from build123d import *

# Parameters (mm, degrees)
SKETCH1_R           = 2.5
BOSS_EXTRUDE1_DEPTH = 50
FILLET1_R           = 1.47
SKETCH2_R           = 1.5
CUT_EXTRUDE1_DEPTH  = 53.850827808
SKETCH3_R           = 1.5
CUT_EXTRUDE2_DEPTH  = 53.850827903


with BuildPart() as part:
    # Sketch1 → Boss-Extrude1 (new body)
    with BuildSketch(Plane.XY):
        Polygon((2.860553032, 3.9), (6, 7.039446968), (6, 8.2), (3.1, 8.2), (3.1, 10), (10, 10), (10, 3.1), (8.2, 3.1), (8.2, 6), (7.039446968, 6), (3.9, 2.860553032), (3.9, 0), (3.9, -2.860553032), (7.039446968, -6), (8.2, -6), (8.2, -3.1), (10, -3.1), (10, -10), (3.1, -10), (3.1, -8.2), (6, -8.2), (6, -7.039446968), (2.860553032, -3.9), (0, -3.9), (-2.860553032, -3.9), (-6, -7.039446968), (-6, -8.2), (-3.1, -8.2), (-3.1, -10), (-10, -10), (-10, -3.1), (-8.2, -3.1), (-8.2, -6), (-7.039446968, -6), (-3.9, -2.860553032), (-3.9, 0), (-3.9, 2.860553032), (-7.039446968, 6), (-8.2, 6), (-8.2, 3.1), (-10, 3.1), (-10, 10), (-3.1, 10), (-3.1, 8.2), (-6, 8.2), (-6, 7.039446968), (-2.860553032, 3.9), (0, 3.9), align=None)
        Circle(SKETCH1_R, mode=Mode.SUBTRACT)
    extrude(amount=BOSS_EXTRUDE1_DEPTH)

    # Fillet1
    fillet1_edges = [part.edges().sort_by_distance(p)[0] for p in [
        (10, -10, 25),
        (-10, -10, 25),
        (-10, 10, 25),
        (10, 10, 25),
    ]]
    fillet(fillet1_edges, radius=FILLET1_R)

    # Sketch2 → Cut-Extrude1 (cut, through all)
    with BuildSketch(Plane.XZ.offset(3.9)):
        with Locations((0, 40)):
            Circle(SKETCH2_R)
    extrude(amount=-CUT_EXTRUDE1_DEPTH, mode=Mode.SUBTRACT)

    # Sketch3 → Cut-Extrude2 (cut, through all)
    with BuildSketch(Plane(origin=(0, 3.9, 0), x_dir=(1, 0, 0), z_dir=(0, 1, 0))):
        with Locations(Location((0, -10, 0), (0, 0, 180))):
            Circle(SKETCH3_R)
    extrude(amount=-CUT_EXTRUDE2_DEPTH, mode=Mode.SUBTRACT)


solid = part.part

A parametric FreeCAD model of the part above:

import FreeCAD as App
import Part
import Sketcher

V = App.Vector


def edges_at(feature, points):
    """Names of the edges that pass closest to the given points."""
    edges = feature.Shape.Edges
    near = lambda p: min(range(len(edges)), key=lambda i: edges[i].distToShape(Part.Vertex(*p))[0])
    return sorted({f"Edge{near(p) + 1}" for p in points})

doc = App.newDocument("Part")
body = doc.addObject("PartDesign::Body", "Body")

sketch1 = body.newObject("Sketcher::SketchObject", "Sketch")
sketch1.AttachmentSupport = (doc.getObject("XY_Plane"), [""])
sketch1.MapMode = "FlatFace"
sketch1.addGeometry([
    Part.LineSegment(V(6, 7, 0), V(2.9, 3.9, 0)),
    Part.LineSegment(V(2.9, 3.9, 0), V(-2.9, 3.9, 0)),
    Part.LineSegment(V(-2.9, 3.9, 0), V(-6, 7, 0)),
    Part.LineSegment(V(-6, 7, 0), V(-6, 8.2, 0)),
    Part.LineSegment(V(-6, 8.2, 0), V(-3.1, 8.2, 0)),
    Part.LineSegment(V(-3.1, 8.2, 0), V(-3.1, 10, 0)),
    Part.LineSegment(V(-3.1, 10, 0), V(-10, 10, 0)),
    Part.LineSegment(V(-10, 10, 0), V(-10, 3.1, 0)),
    Part.LineSegment(V(-10, 3.1, 0), V(-8.2, 3.1, 0)),
    Part.LineSegment(V(-8.2, 3.1, 0), V(-8.2, 6, 0)),
    Part.LineSegment(V(-8.2, 6, 0), V(-7, 6, 0)),
    Part.LineSegment(V(-7, 6, 0), V(-3.9, 2.9, 0)),
    Part.LineSegment(V(-3.9, 2.9, 0), V(-3.9, -2.9, 0)),
    Part.LineSegment(V(-3.9, -2.9, 0), V(-7, -6, 0)),
    Part.LineSegment(V(-7, -6, 0), V(-8.2, -6, 0)),
    Part.LineSegment(V(-8.2, -6, 0), V(-8.2, -3.1, 0)),
    Part.LineSegment(V(-8.2, -3.1, 0), V(-10, -3.1, 0)),
    Part.LineSegment(V(-10, -3.1, 0), V(-10, -10, 0)),
    Part.LineSegment(V(-10, -10, 0), V(-3.1, -10, 0)),
    Part.LineSegment(V(-3.1, -10, 0), V(-3.1, -8.2, 0)),
    Part.LineSegment(V(-3.1, -8.2, 0), V(-6, -8.2, 0)),
    Part.LineSegment(V(-6, -8.2, 0), V(-6, -7, 0)),
    Part.LineSegment(V(-6, -7, 0), V(-2.9, -3.9, 0)),
    Part.LineSegment(V(-2.9, -3.9, 0), V(2.9, -3.9, 0)),
    Part.LineSegment(V(2.9, -3.9, 0), V(6, -7, 0)),
    Part.LineSegment(V(6, -7, 0), V(6, -8.2, 0)),
    Part.LineSegment(V(6, -8.2, 0), V(3.1, -8.2, 0)),
    Part.LineSegment(V(3.1, -8.2, 0), V(3.1, -10, 0)),
    Part.LineSegment(V(3.1, -10, 0), V(10, -10, 0)),
    Part.LineSegment(V(10, -10, 0), V(10, -3.1, 0)),
    Part.LineSegment(V(10, -3.1, 0), V(8.2, -3.1, 0)),
    Part.LineSegment(V(8.2, -3.1, 0), V(8.2, -6, 0)),
    Part.LineSegment(V(8.2, -6, 0), V(7, -6, 0)),
    Part.LineSegment(V(7, -6, 0), V(3.9, -2.9, 0)),
    Part.LineSegment(V(3.9, -2.9, 0), V(3.9, 2.9, 0)),
    Part.LineSegment(V(3.9, 2.9, 0), V(7, 6, 0)),
    Part.LineSegment(V(7, 6, 0), V(8.2, 6, 0)),
    Part.LineSegment(V(8.2, 6, 0), V(8.2, 3.1, 0)),
    Part.LineSegment(V(8.2, 3.1, 0), V(10, 3.1, 0)),
    Part.LineSegment(V(10, 3.1, 0), V(10, 10, 0)),
    Part.LineSegment(V(10, 10, 0), V(3.1, 10, 0)),
    Part.LineSegment(V(3.1, 10, 0), V(3.1, 8.2, 0)),
    Part.LineSegment(V(3.1, 8.2, 0), V(6, 8.2, 0)),
    Part.LineSegment(V(6, 8.2, 0), V(6, 7, 0)),
    Part.Circle(V(0, 0, 0), V(0, 0, 1), 2.5),
], False)
sketch1.addConstraint([
    Sketcher.Constraint("Coincident", 0, 2, 1, 1),
    Sketcher.Constraint("Coincident", 1, 2, 2, 1),
    Sketcher.Constraint("Coincident", 2, 2, 3, 1),
    Sketcher.Constraint("Coincident", 3, 2, 4, 1),
    Sketcher.Constraint("Coincident", 4, 2, 5, 1),
    Sketcher.Constraint("Coincident", 5, 2, 6, 1),
    Sketcher.Constraint("Coincident", 6, 2, 7, 1),
    Sketcher.Constraint("Coincident", 7, 2, 8, 1),
    Sketcher.Constraint("Coincident", 8, 2, 9, 1),
    Sketcher.Constraint("Coincident", 9, 2, 10, 1),
    Sketcher.Constraint("Coincident", 10, 2, 11, 1),
    Sketcher.Constraint("Coincident", 11, 2, 12, 1),
    Sketcher.Constraint("Coincident", 12, 2, 13, 1),
    Sketcher.Constraint("Coincident", 13, 2, 14, 1),
    Sketcher.Constraint("Coincident", 14, 2, 15, 1),
    Sketcher.Constraint("Coincident", 15, 2, 16, 1),
    Sketcher.Constraint("Coincident", 16, 2, 17, 1),
    Sketcher.Constraint("Coincident", 17, 2, 18, 1),
    Sketcher.Constraint("Coincident", 18, 2, 19, 1),
    Sketcher.Constraint("Coincident", 19, 2, 20, 1),
    Sketcher.Constraint("Coincident", 20, 2, 21, 1),
    Sketcher.Constraint("Coincident", 21, 2, 22, 1),
    Sketcher.Constraint("Coincident", 22, 2, 23, 1),
    Sketcher.Constraint("Coincident", 23, 2, 24, 1),
    Sketcher.Constraint("Coincident", 24, 2, 25, 1),
    Sketcher.Constraint("Coincident", 25, 2, 26, 1),
    Sketcher.Constraint("Coincident", 26, 2, 27, 1),
    Sketcher.Constraint("Coincident", 27, 2, 28, 1),
    Sketcher.Constraint("Coincident", 28, 2, 29, 1),
    Sketcher.Constraint("Coincident", 29, 2, 30, 1),
    Sketcher.Constraint("Coincident", 30, 2, 31, 1),
    Sketcher.Constraint("Coincident", 31, 2, 32, 1),
    Sketcher.Constraint("Coincident", 32, 2, 33, 1),
    Sketcher.Constraint("Coincident", 33, 2, 34, 1),
    Sketcher.Constraint("Coincident", 34, 2, 35, 1),
    Sketcher.Constraint("Coincident", 35, 2, 36, 1),
    Sketcher.Constraint("Coincident", 36, 2, 37, 1),
    Sketcher.Constraint("Coincident", 37, 2, 38, 1),
    Sketcher.Constraint("Coincident", 38, 2, 39, 1),
    Sketcher.Constraint("Coincident", 39, 2, 40, 1),
    Sketcher.Constraint("Coincident", 40, 2, 41, 1),
    Sketcher.Constraint("Coincident", 41, 2, 42, 1),
    Sketcher.Constraint("Coincident", 42, 2, 43, 1),
    Sketcher.Constraint("Coincident", 43, 2, 0, 1),
    Sketcher.Constraint("Horizontal", 1),
    Sketcher.Constraint("Vertical", 3),
    Sketcher.Constraint("Horizontal", 4),
    Sketcher.Constraint("Vertical", 5),
    Sketcher.Constraint("Horizontal", 6),
    Sketcher.Constraint("Vertical", 7),
    Sketcher.Constraint("Horizontal", 8),
    Sketcher.Constraint("Vertical", 9),
    Sketcher.Constraint("Horizontal", 10),
    Sketcher.Constraint("Vertical", 12),
    Sketcher.Constraint("Horizontal", 14),
    Sketcher.Constraint("Vertical", 15),
    Sketcher.Constraint("Horizontal", 16),
    Sketcher.Constraint("Vertical", 17),
    Sketcher.Constraint("Horizontal", 18),
    Sketcher.Constraint("Vertical", 19),
    Sketcher.Constraint("Horizontal", 20),
    Sketcher.Constraint("Vertical", 21),
    Sketcher.Constraint("Horizontal", 23),
    Sketcher.Constraint("Vertical", 25),
    Sketcher.Constraint("Horizontal", 26),
    Sketcher.Constraint("Vertical", 27),
    Sketcher.Constraint("Horizontal", 28),
    Sketcher.Constraint("Vertical", 29),
    Sketcher.Constraint("Horizontal", 30),
    Sketcher.Constraint("Vertical", 31),
    Sketcher.Constraint("Horizontal", 32),
    Sketcher.Constraint("Vertical", 34),
    Sketcher.Constraint("Horizontal", 36),
    Sketcher.Constraint("Vertical", 37),
    Sketcher.Constraint("Horizontal", 38),
    Sketcher.Constraint("Vertical", 39),
    Sketcher.Constraint("Horizontal", 40),
    Sketcher.Constraint("Vertical", 41),
    Sketcher.Constraint("Horizontal", 42),
    Sketcher.Constraint("Vertical", 43),
    Sketcher.Constraint("Coincident", 44, 3, -1, 1),
    Sketcher.Constraint("Symmetric", 0, 2, 22, 2, -1, 1),
    Sketcher.Constraint("Symmetric", 2, 2, 24, 2, -1, 1),
    Sketcher.Constraint("Symmetric", 4, 2, 26, 2, -1, 1),
    Sketcher.Constraint("Symmetric", 6, 2, 28, 2, -1, 1),
    Sketcher.Constraint("Symmetric", 8, 2, 30, 2, -1, 1),
    Sketcher.Constraint("Symmetric", 10, 2, 32, 2, -1, 1),
    Sketcher.Constraint("Symmetric", 11, 2, 33, 2, -1, 1),
    Sketcher.Constraint("Symmetric", 13, 2, 35, 2, -1, 1),
    Sketcher.Constraint("Symmetric", 15, 2, 37, 2, -1, 1),
    Sketcher.Constraint("Symmetric", 17, 2, 39, 2, -1, 1),
    Sketcher.Constraint("Symmetric", 19, 2, 41, 2, -1, 1),
    Sketcher.Constraint("Symmetric", 21, 2, 43, 2, -1, 1),
    Sketcher.Constraint("Symmetric", 21, 2, 24, 2, -2),
    Sketcher.Constraint("Symmetric", 19, 2, 26, 2, -2),
    Sketcher.Constraint("Symmetric", 17, 2, 28, 2, -2),
    Sketcher.Constraint("Symmetric", 15, 2, 30, 2, -2),
    Sketcher.Constraint("Symmetric", 13, 2, 32, 2, -2),
    Sketcher.Constraint("Perpendicular", 0, 2),
    Sketcher.Constraint("Parallel", 2, 11),
    Sketcher.Constraint("Perpendicular", 11, 13),
    Sketcher.Constraint("Perpendicular", 22, 24),
    Sketcher.Constraint("Perpendicular", 33, 35),
    Sketcher.Constraint("Horizontal", 12, 2, 33, 2),
    Sketcher.Constraint("Equal", 36, 3),
    Sketcher.Constraint("Equal", 38, 5),
    Sketcher.Constraint("Equal", 40, 7),
    Sketcher.Constraint("Equal", 42, 9),
    Sketcher.Constraint("Equal", 23, 12),
    Sketcher.Constraint("Equal", 2, 11),
    Sketcher.Constraint("Diameter", 44, 5.0),
    Sketcher.Constraint("DistanceX", 4, 1, 4, 2, 2.9),
    Sketcher.Constraint("DistanceX", 6, 2, 6, 1, 6.9),
    Sketcher.Constraint("DistanceX", 8, 1, 8, 2, 1.8),
    Sketcher.Constraint("DistanceX", 2, 2, -1, 1, 6.0),
    Sketcher.Constraint("DistanceY", -1, 1, 0, 2, 3.9),
    Sketcher.Constraint("Distance", 0, 4.439848),
])
pad1 = body.newObject("PartDesign::Pad", "Pad")
pad1.Profile = sketch1
pad1.Length = 50
doc.recompute()

fillet = body.newObject("PartDesign::Fillet", "Fillet")
fillet.Base = (pad1, edges_at(pad1, [
    (10, -10, 25),
    (-10, -10, 25),
    (-10, 10, 25),
    (10, 10, 25),
]))
fillet.Radius = 1.47

sketch2 = body.newObject("Sketcher::SketchObject", "Sketch001")
sketch2.AttachmentSupport = (doc.getObject("XZ_Plane"), [""])
sketch2.MapMode = "FlatFace"
sketch2.AttachmentOffset = App.Placement(V(0, 0, 3.9), App.Rotation())
sketch2.addGeometry(Part.Circle(V(0, 40, 0), V(0, 0, 1), 1.5), False)
sketch2.addConstraint([
    Sketcher.Constraint("PointOnObject", 0, 3, -2),
    Sketcher.Constraint("Diameter", 0, 3.0),
    Sketcher.Constraint("DistanceY", -1, 1, 0, 3, 40.0),
])
pocket1 = body.newObject("PartDesign::Pocket", "Pocket")
pocket1.Profile = sketch2
pocket1.Type = "ThroughAll"

sketch3 = body.newObject("Sketcher::SketchObject", "Sketch002")
sketch3.AttachmentSupport = (doc.getObject("XZ_Plane"), [""])
sketch3.MapMode = "FlatFace"
sketch3.AttachmentOffset = App.Placement(V(0, 0, -3.9), App.Rotation())
sketch3.addGeometry(Part.Circle(V(0, 10, 0), V(0, 0, 1), 1.5), False)
sketch3.addConstraint([
    Sketcher.Constraint("PointOnObject", 0, 3, -2),
    Sketcher.Constraint("Diameter", 0, 3.0),
    Sketcher.Constraint("DistanceY", -1, 1, 0, 3, 10.0),
])
pocket2 = body.newObject("PartDesign::Pocket", "Pocket001")
pocket2.Profile = sketch3
pocket2.Type = "ThroughAll"
pocket2.Reversed = True

doc.recompute()
